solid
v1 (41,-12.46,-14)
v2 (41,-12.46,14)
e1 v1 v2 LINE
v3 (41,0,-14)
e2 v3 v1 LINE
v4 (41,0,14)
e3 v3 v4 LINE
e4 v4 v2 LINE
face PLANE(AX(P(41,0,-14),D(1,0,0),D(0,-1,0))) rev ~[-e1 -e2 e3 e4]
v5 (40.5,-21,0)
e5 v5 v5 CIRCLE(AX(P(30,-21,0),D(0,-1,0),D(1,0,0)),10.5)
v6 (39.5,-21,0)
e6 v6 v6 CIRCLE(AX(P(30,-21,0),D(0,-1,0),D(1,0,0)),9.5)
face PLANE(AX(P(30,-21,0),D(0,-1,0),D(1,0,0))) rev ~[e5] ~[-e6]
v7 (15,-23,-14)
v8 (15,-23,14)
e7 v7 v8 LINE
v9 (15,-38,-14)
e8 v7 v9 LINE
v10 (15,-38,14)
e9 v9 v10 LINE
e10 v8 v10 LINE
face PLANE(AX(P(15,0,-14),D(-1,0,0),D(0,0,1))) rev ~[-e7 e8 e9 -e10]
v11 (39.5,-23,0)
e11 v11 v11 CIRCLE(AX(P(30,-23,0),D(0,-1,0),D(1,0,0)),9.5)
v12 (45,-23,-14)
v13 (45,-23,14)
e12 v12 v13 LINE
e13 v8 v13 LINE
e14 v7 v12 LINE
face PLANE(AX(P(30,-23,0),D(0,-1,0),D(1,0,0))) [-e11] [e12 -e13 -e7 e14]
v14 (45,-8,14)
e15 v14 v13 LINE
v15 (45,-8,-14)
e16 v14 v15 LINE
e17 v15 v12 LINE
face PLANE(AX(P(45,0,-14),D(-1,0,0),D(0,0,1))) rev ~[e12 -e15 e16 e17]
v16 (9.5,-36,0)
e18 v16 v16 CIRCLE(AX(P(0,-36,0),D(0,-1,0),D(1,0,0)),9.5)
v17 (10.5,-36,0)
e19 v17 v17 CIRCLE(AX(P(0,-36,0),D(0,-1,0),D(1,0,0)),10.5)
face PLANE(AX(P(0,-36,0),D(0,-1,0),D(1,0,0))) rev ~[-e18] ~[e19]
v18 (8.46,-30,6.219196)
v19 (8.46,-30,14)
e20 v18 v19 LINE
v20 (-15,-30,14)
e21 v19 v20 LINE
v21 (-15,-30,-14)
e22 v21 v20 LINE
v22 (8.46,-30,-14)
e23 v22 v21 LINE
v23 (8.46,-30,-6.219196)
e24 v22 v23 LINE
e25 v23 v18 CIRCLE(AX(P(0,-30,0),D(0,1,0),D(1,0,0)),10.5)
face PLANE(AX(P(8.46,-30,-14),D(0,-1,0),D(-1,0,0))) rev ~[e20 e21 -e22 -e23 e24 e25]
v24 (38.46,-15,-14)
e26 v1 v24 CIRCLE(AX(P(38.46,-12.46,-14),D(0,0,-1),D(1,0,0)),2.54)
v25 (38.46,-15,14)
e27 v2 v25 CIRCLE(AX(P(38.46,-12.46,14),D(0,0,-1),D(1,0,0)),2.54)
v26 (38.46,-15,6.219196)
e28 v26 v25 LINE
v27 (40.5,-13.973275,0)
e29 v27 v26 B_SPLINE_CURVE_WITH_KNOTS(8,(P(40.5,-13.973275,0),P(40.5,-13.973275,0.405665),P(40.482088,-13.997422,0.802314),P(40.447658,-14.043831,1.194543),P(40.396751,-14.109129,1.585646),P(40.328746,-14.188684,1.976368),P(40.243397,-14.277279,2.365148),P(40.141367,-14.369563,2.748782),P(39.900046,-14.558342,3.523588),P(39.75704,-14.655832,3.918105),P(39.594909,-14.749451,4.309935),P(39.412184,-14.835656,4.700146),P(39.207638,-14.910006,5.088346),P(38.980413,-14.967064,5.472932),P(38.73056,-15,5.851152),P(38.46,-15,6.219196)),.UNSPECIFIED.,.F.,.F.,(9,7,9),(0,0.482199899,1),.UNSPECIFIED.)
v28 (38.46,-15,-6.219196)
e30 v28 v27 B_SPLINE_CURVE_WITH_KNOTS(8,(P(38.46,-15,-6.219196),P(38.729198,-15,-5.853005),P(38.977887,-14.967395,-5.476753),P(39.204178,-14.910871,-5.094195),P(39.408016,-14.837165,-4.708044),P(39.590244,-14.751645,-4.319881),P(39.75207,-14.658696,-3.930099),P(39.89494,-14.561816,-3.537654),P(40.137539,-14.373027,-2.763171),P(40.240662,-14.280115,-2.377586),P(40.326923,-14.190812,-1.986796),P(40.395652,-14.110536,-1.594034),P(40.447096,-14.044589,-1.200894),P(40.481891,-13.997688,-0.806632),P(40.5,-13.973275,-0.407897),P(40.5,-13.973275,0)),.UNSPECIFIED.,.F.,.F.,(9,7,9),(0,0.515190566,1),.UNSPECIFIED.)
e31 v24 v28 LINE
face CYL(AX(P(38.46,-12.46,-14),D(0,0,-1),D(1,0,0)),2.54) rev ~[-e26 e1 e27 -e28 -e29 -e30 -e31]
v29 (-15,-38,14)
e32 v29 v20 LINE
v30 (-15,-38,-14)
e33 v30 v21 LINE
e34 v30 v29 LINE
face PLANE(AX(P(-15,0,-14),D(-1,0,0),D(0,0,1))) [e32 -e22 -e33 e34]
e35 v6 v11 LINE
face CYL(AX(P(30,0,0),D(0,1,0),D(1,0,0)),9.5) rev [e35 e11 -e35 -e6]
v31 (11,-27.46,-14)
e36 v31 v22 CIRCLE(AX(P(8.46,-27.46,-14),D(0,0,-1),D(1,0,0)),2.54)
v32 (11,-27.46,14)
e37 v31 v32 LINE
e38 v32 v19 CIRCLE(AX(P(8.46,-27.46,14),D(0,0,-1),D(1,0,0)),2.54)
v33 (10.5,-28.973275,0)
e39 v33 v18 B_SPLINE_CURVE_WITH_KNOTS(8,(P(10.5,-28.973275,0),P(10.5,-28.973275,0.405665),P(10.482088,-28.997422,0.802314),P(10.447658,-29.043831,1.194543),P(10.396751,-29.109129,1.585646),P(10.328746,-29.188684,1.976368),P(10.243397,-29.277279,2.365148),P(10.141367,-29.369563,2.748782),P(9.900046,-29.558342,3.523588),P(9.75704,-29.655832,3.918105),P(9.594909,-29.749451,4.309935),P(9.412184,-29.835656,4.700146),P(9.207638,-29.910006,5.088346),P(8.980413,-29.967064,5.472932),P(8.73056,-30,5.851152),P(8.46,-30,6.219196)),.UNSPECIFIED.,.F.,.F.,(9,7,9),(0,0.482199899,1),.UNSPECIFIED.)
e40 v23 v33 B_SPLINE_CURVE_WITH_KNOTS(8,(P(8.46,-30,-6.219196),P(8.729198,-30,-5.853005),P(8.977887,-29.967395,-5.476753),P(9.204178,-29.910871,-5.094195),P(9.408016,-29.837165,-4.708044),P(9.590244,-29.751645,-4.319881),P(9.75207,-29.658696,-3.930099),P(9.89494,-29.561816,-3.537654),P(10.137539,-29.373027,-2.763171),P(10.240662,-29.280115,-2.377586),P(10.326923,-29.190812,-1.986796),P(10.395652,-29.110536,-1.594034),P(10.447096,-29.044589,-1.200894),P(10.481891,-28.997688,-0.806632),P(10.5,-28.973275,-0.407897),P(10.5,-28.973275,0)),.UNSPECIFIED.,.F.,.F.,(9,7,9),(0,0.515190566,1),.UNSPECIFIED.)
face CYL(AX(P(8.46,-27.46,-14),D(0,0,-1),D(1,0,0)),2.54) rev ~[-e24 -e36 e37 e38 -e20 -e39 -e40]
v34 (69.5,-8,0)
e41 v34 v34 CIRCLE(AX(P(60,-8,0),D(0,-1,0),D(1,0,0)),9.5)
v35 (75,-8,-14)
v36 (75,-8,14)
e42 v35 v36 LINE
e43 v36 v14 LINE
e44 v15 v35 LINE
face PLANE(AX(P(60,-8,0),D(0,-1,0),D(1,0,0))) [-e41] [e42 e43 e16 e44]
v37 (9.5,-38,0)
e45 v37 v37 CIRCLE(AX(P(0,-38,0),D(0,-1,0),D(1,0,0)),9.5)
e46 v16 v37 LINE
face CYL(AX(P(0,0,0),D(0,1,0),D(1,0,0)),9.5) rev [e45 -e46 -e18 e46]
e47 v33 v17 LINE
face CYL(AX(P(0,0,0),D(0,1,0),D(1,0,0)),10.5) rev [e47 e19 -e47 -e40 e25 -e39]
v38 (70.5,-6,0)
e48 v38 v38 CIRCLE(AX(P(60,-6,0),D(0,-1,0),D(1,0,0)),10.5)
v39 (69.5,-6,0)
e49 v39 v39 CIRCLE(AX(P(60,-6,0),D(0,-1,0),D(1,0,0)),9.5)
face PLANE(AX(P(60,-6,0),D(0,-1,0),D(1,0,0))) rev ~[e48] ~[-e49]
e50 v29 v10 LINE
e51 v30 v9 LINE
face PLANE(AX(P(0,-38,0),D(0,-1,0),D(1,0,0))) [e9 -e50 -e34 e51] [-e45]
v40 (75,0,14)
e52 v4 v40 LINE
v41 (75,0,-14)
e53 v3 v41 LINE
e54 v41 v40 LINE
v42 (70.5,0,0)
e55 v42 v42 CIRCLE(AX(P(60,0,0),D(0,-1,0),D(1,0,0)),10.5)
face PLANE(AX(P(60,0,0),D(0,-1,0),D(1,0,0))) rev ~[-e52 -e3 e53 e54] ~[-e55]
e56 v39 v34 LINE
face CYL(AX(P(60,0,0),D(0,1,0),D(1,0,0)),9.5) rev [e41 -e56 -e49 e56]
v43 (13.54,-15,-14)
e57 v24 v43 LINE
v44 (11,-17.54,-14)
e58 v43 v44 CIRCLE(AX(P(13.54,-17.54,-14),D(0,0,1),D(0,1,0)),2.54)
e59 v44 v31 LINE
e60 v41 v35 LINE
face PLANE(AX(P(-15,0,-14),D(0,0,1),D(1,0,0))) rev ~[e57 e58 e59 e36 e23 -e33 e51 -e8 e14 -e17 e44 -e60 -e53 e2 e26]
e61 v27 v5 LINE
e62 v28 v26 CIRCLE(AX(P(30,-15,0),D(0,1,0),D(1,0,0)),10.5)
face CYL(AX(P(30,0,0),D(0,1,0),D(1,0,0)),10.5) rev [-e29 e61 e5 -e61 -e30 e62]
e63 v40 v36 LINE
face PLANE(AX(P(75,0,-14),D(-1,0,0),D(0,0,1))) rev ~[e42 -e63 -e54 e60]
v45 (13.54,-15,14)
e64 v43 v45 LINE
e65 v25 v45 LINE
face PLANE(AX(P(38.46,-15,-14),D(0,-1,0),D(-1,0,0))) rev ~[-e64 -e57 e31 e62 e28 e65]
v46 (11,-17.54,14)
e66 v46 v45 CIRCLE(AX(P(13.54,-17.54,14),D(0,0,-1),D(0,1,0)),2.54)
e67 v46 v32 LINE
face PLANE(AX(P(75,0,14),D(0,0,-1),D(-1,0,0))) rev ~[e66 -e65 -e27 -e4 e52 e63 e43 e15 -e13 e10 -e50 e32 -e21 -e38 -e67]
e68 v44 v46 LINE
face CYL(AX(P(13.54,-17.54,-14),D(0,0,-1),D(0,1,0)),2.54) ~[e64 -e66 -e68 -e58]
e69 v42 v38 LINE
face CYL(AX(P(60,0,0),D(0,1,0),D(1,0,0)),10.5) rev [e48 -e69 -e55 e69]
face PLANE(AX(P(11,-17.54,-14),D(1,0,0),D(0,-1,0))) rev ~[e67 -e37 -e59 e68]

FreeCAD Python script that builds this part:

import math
import FreeCAD as App
import Part
import Sketcher
from FreeCAD import Vector
Q = App.Units.Quantity

doc = App.newDocument("Part")
body = doc.addObject("PartDesign::Body", "Body")

# Sketch on XZ plane
sketch1 = body.newObject("Sketcher::SketchObject", "Sketch")
sketch1.AttachmentSupport = (doc.getObject("XZ_Plane"), [""])
sketch1.MapMode = "FlatFace"
sketch1.addGeometry(Part.LineSegment(Vector(75, -14, 0), Vector(75, 14, 0)), False)
sketch1.addGeometry(Part.LineSegment(Vector(75, 14, 0), Vector(-15, 14, 0)), False)
sketch1.addGeometry(Part.LineSegment(Vector(-15, 14, 0), Vector(-15, -14, 0)), False)
sketch1.addGeometry(Part.LineSegment(Vector(-15, -14, 0), Vector(75, -14, 0)), False)
sketch1.addGeometry(Part.Circle(Vector(0, 0, 0), Vector(0, 0, 1), 10), False)
sketch1.addGeometry(Part.Circle(Vector(30, 0, 0), Vector(0, 0, 1), 10), False)
sketch1.addGeometry(Part.Circle(Vector(60, 0, 0), Vector(0, 0, 1), 10), False)
sketch1.addConstraint(Sketcher.Constraint("Coincident", 0, 2, 1, 1))
sketch1.addConstraint(Sketcher.Constraint("Coincident", 1, 2, 2, 1))
sketch1.addConstraint(Sketcher.Constraint("Coincident", 2, 2, 3, 1))
sketch1.addConstraint(Sketcher.Constraint("Coincident", 3, 2, 0, 1))
sketch1.addConstraint(Sketcher.Constraint("Vertical", 0))
sketch1.addConstraint(Sketcher.Constraint("Horizontal", 1))
sketch1.addConstraint(Sketcher.Constraint("Vertical", 2))
sketch1.addConstraint(Sketcher.Constraint("Horizontal", 3))
sketch1.addConstraint(Sketcher.Constraint("Coincident", 4, 3, -1, 1))
sketch1.addConstraint(Sketcher.Constraint("Equal", 4, 5))
sketch1.addConstraint(Sketcher.Constraint("Equal", 5, 6))
sketch1.addConstraint(Sketcher.Constraint("PointOnObject", 5, 3, -1))
sketch1.addConstraint(Sketcher.Constraint("PointOnObject", 6, 3, -1))
sketch1.addConstraint(Sketcher.Constraint("Diameter", 4, Q("19 mm")))
sketch1.addConstraint(Sketcher.Constraint("DistanceX", 1, 2, 1, 1, Q("90 mm")))
sketch1.addConstraint(Sketcher.Constraint("DistanceY", 0, 1, 0, 2, Q("28 mm")))
sketch1.addConstraint(Sketcher.Constraint("DistanceX", -1, 1, 5, 3, Q("30 mm")))
sketch1.addConstraint(Sketcher.Constraint("DistanceX", -1, 1, 6, 3, Q("60 mm")))
sketch1.addConstraint(Sketcher.Constraint("DistanceX", -1, 1, 0, 2, Q("75 mm")))
sketch1.addConstraint(Sketcher.Constraint("DistanceY", -1, 1, 0, 2, Q("14 mm")))
pad1 = body.newObject("PartDesign::Pad", "Pad")
pad1.Profile = sketch1
pad1.Length = 8

# Sketch on XZ plane
sketch2 = body.newObject("Sketcher::SketchObject", "Sketch001")
sketch2.AttachmentSupport = (doc.getObject("XZ_Plane"), [""])
sketch2.MapMode = "FlatFace"
sketch2.addGeometry(Part.LineSegment(Vector(-15, 14, 0), Vector(-15, -14, 0)), False)
sketch2.addGeometry(Part.LineSegment(Vector(-15, -14, 0), Vector(15, -14, 0)), False)
sketch2.addGeometry(Part.LineSegment(Vector(15, -14, 0), Vector(15, 14, 0)), False)
sketch2.addGeometry(Part.LineSegment(Vector(15, 14, 0), Vector(-15, 14, 0)), False)
sketch2.addGeometry(Part.Circle(Vector(0, 0, 0), Vector(0, 0, 1), 10), False)
sketch2.addConstraint(Sketcher.Constraint("Coincident", 0, 2, 1, 1))
sketch2.addConstraint(Sketcher.Constraint("Coincident", 1, 2, 2, 1))
sketch2.addConstraint(Sketcher.Constraint("Coincident", 2, 2, 3, 1))
sketch2.addConstraint(Sketcher.Constraint("Coincident", 3, 2, 0, 1))
sketch2.addConstraint(Sketcher.Constraint("Vertical", 0))
sketch2.addConstraint(Sketcher.Constraint("Horizontal", 1))
sketch2.addConstraint(Sketcher.Constraint("Vertical", 2))
sketch2.addConstraint(Sketcher.Constraint("Horizontal", 3))
sketch2.addConstraint(Sketcher.Constraint("Coincident", 4, 3, -1, 1))
sketch2.addConstraint(Sketcher.Constraint("Symmetric", 0, 2, 2, 2, -1, 1))
sketch2.addConstraint(Sketcher.Constraint("Diameter", 4, Q("19 mm")))
sketch2.addConstraint(Sketcher.Constraint("DistanceX", 1, 1, 1, 2, Q("30 mm")))
sketch2.addConstraint(Sketcher.Constraint("DistanceY", 0, 2, 0, 1, Q("28 mm")))
pad2 = body.newObject("PartDesign::Pad", "Pad001")
pad2.Profile = sketch2
pad2.Length = 38

# Sketch on XZ plane
sketch3 = body.newObject("Sketcher::SketchObject", "Sketch002")
sketch3.AttachmentSupport = (doc.getObject("XZ_Plane"), [""])
sketch3.MapMode = "FlatFace"
sketch3.addGeometry(Part.LineSegment(Vector(15, 14, 0), Vector(15, -14, 0)), False)
sketch3.addGeometry(Part.LineSegment(Vector(15, -14, 0), Vector(45, -14, 0)), False)
sketch3.addGeometry(Part.LineSegment(Vector(45, -14, 0), Vector(45, 14, 0)), False)
sketch3.addGeometry(Part.LineSegment(Vector(45, 14, 0), Vector(15, 14, 0)), False)
sketch3.addGeometry(Part.Circle(Vector(30, 0, 0), Vector(0, 0, 1), 10), False)
sketch3.addConstraint(Sketcher.Constraint("Coincident", 0, 2, 1, 1))
sketch3.addConstraint(Sketcher.Constraint("Coincident", 1, 2, 2, 1))
sketch3.addConstraint(Sketcher.Constraint("Coincident", 2, 2, 3, 1))
sketch3.addConstraint(Sketcher.Constraint("Coincident", 3, 2, 0, 1))
sketch3.addConstraint(Sketcher.Constraint("Vertical", 0))
sketch3.addConstraint(Sketcher.Constraint("Horizontal", 1))
sketch3.addConstraint(Sketcher.Constraint("Vertical", 2))
sketch3.addConstraint(Sketcher.Constraint("Horizontal", 3))
sketch3.addConstraint(Sketcher.Constraint("PointOnObject", 4, 3, -1))
sketch3.addConstraint(Sketcher.Constraint("Diameter", 4, Q("19 mm")))
sketch3.addConstraint(Sketcher.Constraint("DistanceX", 1, 1, 1, 2, Q("30 mm")))
sketch3.addConstraint(Sketcher.Constraint("DistanceY", 0, 2, 0, 1, Q("28 mm")))
sketch3.addConstraint(Sketcher.Constraint("DistanceX", -1, 1, 4, 3, Q("30 mm")))
sketch3.addConstraint(Sketcher.Constraint("DistanceX", -1, 1, 0, 2, Q("15 mm")))
sketch3.addConstraint(Sketcher.Constraint("DistanceY", 0, 2, -1, 1, Q("14 mm")))
pad3 = body.newObject("PartDesign::Pad", "Pad002")
pad3.Profile = sketch3
pad3.Length = 23

# Sketch on XZ plane
sketch4 = body.newObject("Sketcher::SketchObject", "Sketch003")
sketch4.AttachmentSupport = (doc.getObject("XZ_Plane"), [""])
sketch4.MapMode = "FlatFace"
sketch4.addGeometry(Part.Circle(Vector(0, 0, 0), Vector(0, 0, 1), 10), False)
sketch4.addGeometry(Part.Circle(Vector(0, 0, 0), Vector(0, 0, 1), 10), False)
sketch4.addConstraint(Sketcher.Constraint("Coincident", 0, 3, -1, 1))
sketch4.addConstraint(Sketcher.Constraint("Coincident", 1, 3, -1, 1))
sketch4.addConstraint(Sketcher.Constraint("Diameter", 0, Q("21 mm")))
sketch4.addConstraint(Sketcher.Constraint("Diameter", 1, Q("19 mm")))
pocket1 = body.newObject("PartDesign::Pocket", "Pocket")
pocket1.Profile = sketch4
pocket1.Length = 36
pocket1.Reversed = True

# Sketch on XZ plane
sketch5 = body.newObject("Sketcher::SketchObject", "Sketch004")
sketch5.AttachmentSupport = (doc.getObject("XZ_Plane"), [""])
sketch5.MapMode = "FlatFace"
sketch5.addGeometry(Part.Circle(Vector(30, 0, 0), Vector(0, 0, 1), 10), False)
sketch5.addGeometry(Part.Circle(Vector(30, 0, 0), Vector(0, 0, 1), 10), False)
sketch5.addConstraint(Sketcher.Constraint("Coincident", 1, 3, 0, 3))
sketch5.addConstraint(Sketcher.Constraint("PointOnObject", 0, 3, -1))
sketch5.addConstraint(Sketcher.Constraint("Diameter", 0, Q("21 mm")))
sketch5.addConstraint(Sketcher.Constraint("Diameter", 1, Q("19 mm")))
sketch5.addConstraint(Sketcher.Constraint("DistanceX", -1, 1, 0, 3, Q("30 mm")))
pocket2 = body.newObject("PartDesign::Pocket", "Pocket001")
pocket2.Profile = sketch5
pocket2.Length = 21
pocket2.Reversed = True

# Sketch on XZ plane
sketch6 = body.newObject("Sketcher::SketchObject", "Sketch005")
sketch6.AttachmentSupport = (doc.getObject("XZ_Plane"), [""])
sketch6.MapMode = "FlatFace"
sketch6.addGeometry(Part.Circle(Vector(60, 0, 0), Vector(0, 0, 1), 10), False)
sketch6.addGeometry(Part.Circle(Vector(60, 0, 0), Vector(0, 0, 1), 10), False)
sketch6.addConstraint(Sketcher.Constraint("Coincident", 1, 3, 0, 3))
sketch6.addConstraint(Sketcher.Constraint("PointOnObject", 0, 3, -1))
sketch6.addConstraint(Sketcher.Constraint("Diameter", 0, Q("21 mm")))
sketch6.addConstraint(Sketcher.Constraint("Diameter", 1, Q("19 mm")))
sketch6.addConstraint(Sketcher.Constraint("DistanceX", -1, 1, 0, 3, Q("60 mm")))
pocket3 = body.newObject("PartDesign::Pocket", "Pocket002")
pocket3.Profile = sketch6
pocket3.Length = 6
pocket3.Reversed = True

# Sketch on XY plane
sketch7 = body.newObject("Sketcher::SketchObject", "Sketch006")
sketch7.AttachmentSupport = (doc.getObject("XY_Plane"), [""])
sketch7.MapMode = "FlatFace"
sketch7.AttachmentOffset = App.Placement(Vector(0, 0, -14), App.Rotation())
sketch7.addGeometry(Part.LineSegment(Vector(8.5, -30, 0), Vector(-15, -30, 0)), False)
sketch7.addGeometry(Part.LineSegment(Vector(-15, -30, 0), Vector(-15, 0, 0)), False)
sketch7.addGeometry(Part.LineSegment(Vector(-15, 0, 0), Vector(41, 0, 0)), False)
sketch7.addGeometry(Part.LineSegment(Vector(41, 0, 0), Vector(41, -12.5, 0)), False)
sketch7.addGeometry(Part.ArcOfCircle(Part.Circle(Vector(38.5, -12.5, 0), Vector(0, 0, 1), 2.5), math.radians(-90), math.radians(0)), False)
sketch7.addGeometry(Part.LineSegment(Vector(38.5, -15, 0), Vector(13.5, -15, 0)), False)
sketch7.addGeometry(Part.ArcOfCircle(Part.Circle(Vector(13.5, -17.5, 0), Vector(0, 0, 1), 2.5), math.radians(90), math.radians(180)), False)
sketch7.addGeometry(Part.LineSegment(Vector(11, -17.5, 0), Vector(11, -27.5, 0)), False)
sketch7.addGeometry(Part.ArcOfCircle(Part.Circle(Vector(8.5, -27.5, 0), Vector(0, 0, 1), 2.5), math.radians(-90), math.radians(0)), False)
sketch7.addConstraint(Sketcher.Constraint("Coincident", 0, 2, 1, 1))
sketch7.addConstraint(Sketcher.Constraint("Coincident", 1, 2, 2, 1))
sketch7.addConstraint(Sketcher.Constraint("Coincident", 2, 2, 3, 1))
sketch7.addConstraint(Sketcher.Constraint("Tangent", 3, 2, 4, 2))
sketch7.addConstraint(Sketcher.Constraint("Tangent", 4, 1, 5, 1))
sketch7.addConstraint(Sketcher.Constraint("Tangent", 5, 2, 6, 1))
sketch7.addConstraint(Sketcher.Constraint("Tangent", 6, 2, 7, 1))
sketch7.addConstraint(Sketcher.Constraint("Tangent", 7, 2, 8, 2))
sketch7.addConstraint(Sketcher.Constraint("Tangent", 8, 1, 0, 1))
sketch7.addConstraint(Sketcher.Constraint("Horizontal", 0))
sketch7.addConstraint(Sketcher.Constraint("Vertical", 1))
sketch7.addConstraint(Sketcher.Constraint("Horizontal", 2))
sketch7.addConstraint(Sketcher.Constraint("Vertical", 3))
sketch7.addConstraint(Sketcher.Constraint("Horizontal", 5))
sketch7.addConstraint(Sketcher.Constraint("Vertical", 7))
sketch7.addConstraint(Sketcher.Constraint("Equal", 4, 6))
sketch7.addConstraint(Sketcher.Constraint("Equal", 6, 8))
sketch7.addConstraint(Sketcher.Constraint("PointOnObject", 1, 2, -1))
sketch7.addConstraint(Sketcher.Constraint("DistanceX", 2, 1, 2, 2, Q("56 mm")))
sketch7.addConstraint(Sketcher.Constraint("DistanceY", 1, 1, 1, 2, Q("30 mm")))
sketch7.addConstraint(Sketcher.Constraint("Radius", 4, Q("2.54 mm")))
sketch7.addConstraint(Sketcher.Constraint("DistanceX", 0, 2, -1, 1, Q("15 mm")))
sketch7.addConstraint(Sketcher.Constraint("DistanceY", 4, 1, -1, 1, Q("15 mm")))
sketch7.addConstraint(Sketcher.Constraint("DistanceX", -1, 1, 6, 2, Q("11 mm")))
pocket4 = body.newObject("PartDesign::Pocket", "Pocket003")
pocket4.Profile = sketch7
pocket4.Type = "ThroughAll"
pocket4.Reversed = True

doc.recompute()
